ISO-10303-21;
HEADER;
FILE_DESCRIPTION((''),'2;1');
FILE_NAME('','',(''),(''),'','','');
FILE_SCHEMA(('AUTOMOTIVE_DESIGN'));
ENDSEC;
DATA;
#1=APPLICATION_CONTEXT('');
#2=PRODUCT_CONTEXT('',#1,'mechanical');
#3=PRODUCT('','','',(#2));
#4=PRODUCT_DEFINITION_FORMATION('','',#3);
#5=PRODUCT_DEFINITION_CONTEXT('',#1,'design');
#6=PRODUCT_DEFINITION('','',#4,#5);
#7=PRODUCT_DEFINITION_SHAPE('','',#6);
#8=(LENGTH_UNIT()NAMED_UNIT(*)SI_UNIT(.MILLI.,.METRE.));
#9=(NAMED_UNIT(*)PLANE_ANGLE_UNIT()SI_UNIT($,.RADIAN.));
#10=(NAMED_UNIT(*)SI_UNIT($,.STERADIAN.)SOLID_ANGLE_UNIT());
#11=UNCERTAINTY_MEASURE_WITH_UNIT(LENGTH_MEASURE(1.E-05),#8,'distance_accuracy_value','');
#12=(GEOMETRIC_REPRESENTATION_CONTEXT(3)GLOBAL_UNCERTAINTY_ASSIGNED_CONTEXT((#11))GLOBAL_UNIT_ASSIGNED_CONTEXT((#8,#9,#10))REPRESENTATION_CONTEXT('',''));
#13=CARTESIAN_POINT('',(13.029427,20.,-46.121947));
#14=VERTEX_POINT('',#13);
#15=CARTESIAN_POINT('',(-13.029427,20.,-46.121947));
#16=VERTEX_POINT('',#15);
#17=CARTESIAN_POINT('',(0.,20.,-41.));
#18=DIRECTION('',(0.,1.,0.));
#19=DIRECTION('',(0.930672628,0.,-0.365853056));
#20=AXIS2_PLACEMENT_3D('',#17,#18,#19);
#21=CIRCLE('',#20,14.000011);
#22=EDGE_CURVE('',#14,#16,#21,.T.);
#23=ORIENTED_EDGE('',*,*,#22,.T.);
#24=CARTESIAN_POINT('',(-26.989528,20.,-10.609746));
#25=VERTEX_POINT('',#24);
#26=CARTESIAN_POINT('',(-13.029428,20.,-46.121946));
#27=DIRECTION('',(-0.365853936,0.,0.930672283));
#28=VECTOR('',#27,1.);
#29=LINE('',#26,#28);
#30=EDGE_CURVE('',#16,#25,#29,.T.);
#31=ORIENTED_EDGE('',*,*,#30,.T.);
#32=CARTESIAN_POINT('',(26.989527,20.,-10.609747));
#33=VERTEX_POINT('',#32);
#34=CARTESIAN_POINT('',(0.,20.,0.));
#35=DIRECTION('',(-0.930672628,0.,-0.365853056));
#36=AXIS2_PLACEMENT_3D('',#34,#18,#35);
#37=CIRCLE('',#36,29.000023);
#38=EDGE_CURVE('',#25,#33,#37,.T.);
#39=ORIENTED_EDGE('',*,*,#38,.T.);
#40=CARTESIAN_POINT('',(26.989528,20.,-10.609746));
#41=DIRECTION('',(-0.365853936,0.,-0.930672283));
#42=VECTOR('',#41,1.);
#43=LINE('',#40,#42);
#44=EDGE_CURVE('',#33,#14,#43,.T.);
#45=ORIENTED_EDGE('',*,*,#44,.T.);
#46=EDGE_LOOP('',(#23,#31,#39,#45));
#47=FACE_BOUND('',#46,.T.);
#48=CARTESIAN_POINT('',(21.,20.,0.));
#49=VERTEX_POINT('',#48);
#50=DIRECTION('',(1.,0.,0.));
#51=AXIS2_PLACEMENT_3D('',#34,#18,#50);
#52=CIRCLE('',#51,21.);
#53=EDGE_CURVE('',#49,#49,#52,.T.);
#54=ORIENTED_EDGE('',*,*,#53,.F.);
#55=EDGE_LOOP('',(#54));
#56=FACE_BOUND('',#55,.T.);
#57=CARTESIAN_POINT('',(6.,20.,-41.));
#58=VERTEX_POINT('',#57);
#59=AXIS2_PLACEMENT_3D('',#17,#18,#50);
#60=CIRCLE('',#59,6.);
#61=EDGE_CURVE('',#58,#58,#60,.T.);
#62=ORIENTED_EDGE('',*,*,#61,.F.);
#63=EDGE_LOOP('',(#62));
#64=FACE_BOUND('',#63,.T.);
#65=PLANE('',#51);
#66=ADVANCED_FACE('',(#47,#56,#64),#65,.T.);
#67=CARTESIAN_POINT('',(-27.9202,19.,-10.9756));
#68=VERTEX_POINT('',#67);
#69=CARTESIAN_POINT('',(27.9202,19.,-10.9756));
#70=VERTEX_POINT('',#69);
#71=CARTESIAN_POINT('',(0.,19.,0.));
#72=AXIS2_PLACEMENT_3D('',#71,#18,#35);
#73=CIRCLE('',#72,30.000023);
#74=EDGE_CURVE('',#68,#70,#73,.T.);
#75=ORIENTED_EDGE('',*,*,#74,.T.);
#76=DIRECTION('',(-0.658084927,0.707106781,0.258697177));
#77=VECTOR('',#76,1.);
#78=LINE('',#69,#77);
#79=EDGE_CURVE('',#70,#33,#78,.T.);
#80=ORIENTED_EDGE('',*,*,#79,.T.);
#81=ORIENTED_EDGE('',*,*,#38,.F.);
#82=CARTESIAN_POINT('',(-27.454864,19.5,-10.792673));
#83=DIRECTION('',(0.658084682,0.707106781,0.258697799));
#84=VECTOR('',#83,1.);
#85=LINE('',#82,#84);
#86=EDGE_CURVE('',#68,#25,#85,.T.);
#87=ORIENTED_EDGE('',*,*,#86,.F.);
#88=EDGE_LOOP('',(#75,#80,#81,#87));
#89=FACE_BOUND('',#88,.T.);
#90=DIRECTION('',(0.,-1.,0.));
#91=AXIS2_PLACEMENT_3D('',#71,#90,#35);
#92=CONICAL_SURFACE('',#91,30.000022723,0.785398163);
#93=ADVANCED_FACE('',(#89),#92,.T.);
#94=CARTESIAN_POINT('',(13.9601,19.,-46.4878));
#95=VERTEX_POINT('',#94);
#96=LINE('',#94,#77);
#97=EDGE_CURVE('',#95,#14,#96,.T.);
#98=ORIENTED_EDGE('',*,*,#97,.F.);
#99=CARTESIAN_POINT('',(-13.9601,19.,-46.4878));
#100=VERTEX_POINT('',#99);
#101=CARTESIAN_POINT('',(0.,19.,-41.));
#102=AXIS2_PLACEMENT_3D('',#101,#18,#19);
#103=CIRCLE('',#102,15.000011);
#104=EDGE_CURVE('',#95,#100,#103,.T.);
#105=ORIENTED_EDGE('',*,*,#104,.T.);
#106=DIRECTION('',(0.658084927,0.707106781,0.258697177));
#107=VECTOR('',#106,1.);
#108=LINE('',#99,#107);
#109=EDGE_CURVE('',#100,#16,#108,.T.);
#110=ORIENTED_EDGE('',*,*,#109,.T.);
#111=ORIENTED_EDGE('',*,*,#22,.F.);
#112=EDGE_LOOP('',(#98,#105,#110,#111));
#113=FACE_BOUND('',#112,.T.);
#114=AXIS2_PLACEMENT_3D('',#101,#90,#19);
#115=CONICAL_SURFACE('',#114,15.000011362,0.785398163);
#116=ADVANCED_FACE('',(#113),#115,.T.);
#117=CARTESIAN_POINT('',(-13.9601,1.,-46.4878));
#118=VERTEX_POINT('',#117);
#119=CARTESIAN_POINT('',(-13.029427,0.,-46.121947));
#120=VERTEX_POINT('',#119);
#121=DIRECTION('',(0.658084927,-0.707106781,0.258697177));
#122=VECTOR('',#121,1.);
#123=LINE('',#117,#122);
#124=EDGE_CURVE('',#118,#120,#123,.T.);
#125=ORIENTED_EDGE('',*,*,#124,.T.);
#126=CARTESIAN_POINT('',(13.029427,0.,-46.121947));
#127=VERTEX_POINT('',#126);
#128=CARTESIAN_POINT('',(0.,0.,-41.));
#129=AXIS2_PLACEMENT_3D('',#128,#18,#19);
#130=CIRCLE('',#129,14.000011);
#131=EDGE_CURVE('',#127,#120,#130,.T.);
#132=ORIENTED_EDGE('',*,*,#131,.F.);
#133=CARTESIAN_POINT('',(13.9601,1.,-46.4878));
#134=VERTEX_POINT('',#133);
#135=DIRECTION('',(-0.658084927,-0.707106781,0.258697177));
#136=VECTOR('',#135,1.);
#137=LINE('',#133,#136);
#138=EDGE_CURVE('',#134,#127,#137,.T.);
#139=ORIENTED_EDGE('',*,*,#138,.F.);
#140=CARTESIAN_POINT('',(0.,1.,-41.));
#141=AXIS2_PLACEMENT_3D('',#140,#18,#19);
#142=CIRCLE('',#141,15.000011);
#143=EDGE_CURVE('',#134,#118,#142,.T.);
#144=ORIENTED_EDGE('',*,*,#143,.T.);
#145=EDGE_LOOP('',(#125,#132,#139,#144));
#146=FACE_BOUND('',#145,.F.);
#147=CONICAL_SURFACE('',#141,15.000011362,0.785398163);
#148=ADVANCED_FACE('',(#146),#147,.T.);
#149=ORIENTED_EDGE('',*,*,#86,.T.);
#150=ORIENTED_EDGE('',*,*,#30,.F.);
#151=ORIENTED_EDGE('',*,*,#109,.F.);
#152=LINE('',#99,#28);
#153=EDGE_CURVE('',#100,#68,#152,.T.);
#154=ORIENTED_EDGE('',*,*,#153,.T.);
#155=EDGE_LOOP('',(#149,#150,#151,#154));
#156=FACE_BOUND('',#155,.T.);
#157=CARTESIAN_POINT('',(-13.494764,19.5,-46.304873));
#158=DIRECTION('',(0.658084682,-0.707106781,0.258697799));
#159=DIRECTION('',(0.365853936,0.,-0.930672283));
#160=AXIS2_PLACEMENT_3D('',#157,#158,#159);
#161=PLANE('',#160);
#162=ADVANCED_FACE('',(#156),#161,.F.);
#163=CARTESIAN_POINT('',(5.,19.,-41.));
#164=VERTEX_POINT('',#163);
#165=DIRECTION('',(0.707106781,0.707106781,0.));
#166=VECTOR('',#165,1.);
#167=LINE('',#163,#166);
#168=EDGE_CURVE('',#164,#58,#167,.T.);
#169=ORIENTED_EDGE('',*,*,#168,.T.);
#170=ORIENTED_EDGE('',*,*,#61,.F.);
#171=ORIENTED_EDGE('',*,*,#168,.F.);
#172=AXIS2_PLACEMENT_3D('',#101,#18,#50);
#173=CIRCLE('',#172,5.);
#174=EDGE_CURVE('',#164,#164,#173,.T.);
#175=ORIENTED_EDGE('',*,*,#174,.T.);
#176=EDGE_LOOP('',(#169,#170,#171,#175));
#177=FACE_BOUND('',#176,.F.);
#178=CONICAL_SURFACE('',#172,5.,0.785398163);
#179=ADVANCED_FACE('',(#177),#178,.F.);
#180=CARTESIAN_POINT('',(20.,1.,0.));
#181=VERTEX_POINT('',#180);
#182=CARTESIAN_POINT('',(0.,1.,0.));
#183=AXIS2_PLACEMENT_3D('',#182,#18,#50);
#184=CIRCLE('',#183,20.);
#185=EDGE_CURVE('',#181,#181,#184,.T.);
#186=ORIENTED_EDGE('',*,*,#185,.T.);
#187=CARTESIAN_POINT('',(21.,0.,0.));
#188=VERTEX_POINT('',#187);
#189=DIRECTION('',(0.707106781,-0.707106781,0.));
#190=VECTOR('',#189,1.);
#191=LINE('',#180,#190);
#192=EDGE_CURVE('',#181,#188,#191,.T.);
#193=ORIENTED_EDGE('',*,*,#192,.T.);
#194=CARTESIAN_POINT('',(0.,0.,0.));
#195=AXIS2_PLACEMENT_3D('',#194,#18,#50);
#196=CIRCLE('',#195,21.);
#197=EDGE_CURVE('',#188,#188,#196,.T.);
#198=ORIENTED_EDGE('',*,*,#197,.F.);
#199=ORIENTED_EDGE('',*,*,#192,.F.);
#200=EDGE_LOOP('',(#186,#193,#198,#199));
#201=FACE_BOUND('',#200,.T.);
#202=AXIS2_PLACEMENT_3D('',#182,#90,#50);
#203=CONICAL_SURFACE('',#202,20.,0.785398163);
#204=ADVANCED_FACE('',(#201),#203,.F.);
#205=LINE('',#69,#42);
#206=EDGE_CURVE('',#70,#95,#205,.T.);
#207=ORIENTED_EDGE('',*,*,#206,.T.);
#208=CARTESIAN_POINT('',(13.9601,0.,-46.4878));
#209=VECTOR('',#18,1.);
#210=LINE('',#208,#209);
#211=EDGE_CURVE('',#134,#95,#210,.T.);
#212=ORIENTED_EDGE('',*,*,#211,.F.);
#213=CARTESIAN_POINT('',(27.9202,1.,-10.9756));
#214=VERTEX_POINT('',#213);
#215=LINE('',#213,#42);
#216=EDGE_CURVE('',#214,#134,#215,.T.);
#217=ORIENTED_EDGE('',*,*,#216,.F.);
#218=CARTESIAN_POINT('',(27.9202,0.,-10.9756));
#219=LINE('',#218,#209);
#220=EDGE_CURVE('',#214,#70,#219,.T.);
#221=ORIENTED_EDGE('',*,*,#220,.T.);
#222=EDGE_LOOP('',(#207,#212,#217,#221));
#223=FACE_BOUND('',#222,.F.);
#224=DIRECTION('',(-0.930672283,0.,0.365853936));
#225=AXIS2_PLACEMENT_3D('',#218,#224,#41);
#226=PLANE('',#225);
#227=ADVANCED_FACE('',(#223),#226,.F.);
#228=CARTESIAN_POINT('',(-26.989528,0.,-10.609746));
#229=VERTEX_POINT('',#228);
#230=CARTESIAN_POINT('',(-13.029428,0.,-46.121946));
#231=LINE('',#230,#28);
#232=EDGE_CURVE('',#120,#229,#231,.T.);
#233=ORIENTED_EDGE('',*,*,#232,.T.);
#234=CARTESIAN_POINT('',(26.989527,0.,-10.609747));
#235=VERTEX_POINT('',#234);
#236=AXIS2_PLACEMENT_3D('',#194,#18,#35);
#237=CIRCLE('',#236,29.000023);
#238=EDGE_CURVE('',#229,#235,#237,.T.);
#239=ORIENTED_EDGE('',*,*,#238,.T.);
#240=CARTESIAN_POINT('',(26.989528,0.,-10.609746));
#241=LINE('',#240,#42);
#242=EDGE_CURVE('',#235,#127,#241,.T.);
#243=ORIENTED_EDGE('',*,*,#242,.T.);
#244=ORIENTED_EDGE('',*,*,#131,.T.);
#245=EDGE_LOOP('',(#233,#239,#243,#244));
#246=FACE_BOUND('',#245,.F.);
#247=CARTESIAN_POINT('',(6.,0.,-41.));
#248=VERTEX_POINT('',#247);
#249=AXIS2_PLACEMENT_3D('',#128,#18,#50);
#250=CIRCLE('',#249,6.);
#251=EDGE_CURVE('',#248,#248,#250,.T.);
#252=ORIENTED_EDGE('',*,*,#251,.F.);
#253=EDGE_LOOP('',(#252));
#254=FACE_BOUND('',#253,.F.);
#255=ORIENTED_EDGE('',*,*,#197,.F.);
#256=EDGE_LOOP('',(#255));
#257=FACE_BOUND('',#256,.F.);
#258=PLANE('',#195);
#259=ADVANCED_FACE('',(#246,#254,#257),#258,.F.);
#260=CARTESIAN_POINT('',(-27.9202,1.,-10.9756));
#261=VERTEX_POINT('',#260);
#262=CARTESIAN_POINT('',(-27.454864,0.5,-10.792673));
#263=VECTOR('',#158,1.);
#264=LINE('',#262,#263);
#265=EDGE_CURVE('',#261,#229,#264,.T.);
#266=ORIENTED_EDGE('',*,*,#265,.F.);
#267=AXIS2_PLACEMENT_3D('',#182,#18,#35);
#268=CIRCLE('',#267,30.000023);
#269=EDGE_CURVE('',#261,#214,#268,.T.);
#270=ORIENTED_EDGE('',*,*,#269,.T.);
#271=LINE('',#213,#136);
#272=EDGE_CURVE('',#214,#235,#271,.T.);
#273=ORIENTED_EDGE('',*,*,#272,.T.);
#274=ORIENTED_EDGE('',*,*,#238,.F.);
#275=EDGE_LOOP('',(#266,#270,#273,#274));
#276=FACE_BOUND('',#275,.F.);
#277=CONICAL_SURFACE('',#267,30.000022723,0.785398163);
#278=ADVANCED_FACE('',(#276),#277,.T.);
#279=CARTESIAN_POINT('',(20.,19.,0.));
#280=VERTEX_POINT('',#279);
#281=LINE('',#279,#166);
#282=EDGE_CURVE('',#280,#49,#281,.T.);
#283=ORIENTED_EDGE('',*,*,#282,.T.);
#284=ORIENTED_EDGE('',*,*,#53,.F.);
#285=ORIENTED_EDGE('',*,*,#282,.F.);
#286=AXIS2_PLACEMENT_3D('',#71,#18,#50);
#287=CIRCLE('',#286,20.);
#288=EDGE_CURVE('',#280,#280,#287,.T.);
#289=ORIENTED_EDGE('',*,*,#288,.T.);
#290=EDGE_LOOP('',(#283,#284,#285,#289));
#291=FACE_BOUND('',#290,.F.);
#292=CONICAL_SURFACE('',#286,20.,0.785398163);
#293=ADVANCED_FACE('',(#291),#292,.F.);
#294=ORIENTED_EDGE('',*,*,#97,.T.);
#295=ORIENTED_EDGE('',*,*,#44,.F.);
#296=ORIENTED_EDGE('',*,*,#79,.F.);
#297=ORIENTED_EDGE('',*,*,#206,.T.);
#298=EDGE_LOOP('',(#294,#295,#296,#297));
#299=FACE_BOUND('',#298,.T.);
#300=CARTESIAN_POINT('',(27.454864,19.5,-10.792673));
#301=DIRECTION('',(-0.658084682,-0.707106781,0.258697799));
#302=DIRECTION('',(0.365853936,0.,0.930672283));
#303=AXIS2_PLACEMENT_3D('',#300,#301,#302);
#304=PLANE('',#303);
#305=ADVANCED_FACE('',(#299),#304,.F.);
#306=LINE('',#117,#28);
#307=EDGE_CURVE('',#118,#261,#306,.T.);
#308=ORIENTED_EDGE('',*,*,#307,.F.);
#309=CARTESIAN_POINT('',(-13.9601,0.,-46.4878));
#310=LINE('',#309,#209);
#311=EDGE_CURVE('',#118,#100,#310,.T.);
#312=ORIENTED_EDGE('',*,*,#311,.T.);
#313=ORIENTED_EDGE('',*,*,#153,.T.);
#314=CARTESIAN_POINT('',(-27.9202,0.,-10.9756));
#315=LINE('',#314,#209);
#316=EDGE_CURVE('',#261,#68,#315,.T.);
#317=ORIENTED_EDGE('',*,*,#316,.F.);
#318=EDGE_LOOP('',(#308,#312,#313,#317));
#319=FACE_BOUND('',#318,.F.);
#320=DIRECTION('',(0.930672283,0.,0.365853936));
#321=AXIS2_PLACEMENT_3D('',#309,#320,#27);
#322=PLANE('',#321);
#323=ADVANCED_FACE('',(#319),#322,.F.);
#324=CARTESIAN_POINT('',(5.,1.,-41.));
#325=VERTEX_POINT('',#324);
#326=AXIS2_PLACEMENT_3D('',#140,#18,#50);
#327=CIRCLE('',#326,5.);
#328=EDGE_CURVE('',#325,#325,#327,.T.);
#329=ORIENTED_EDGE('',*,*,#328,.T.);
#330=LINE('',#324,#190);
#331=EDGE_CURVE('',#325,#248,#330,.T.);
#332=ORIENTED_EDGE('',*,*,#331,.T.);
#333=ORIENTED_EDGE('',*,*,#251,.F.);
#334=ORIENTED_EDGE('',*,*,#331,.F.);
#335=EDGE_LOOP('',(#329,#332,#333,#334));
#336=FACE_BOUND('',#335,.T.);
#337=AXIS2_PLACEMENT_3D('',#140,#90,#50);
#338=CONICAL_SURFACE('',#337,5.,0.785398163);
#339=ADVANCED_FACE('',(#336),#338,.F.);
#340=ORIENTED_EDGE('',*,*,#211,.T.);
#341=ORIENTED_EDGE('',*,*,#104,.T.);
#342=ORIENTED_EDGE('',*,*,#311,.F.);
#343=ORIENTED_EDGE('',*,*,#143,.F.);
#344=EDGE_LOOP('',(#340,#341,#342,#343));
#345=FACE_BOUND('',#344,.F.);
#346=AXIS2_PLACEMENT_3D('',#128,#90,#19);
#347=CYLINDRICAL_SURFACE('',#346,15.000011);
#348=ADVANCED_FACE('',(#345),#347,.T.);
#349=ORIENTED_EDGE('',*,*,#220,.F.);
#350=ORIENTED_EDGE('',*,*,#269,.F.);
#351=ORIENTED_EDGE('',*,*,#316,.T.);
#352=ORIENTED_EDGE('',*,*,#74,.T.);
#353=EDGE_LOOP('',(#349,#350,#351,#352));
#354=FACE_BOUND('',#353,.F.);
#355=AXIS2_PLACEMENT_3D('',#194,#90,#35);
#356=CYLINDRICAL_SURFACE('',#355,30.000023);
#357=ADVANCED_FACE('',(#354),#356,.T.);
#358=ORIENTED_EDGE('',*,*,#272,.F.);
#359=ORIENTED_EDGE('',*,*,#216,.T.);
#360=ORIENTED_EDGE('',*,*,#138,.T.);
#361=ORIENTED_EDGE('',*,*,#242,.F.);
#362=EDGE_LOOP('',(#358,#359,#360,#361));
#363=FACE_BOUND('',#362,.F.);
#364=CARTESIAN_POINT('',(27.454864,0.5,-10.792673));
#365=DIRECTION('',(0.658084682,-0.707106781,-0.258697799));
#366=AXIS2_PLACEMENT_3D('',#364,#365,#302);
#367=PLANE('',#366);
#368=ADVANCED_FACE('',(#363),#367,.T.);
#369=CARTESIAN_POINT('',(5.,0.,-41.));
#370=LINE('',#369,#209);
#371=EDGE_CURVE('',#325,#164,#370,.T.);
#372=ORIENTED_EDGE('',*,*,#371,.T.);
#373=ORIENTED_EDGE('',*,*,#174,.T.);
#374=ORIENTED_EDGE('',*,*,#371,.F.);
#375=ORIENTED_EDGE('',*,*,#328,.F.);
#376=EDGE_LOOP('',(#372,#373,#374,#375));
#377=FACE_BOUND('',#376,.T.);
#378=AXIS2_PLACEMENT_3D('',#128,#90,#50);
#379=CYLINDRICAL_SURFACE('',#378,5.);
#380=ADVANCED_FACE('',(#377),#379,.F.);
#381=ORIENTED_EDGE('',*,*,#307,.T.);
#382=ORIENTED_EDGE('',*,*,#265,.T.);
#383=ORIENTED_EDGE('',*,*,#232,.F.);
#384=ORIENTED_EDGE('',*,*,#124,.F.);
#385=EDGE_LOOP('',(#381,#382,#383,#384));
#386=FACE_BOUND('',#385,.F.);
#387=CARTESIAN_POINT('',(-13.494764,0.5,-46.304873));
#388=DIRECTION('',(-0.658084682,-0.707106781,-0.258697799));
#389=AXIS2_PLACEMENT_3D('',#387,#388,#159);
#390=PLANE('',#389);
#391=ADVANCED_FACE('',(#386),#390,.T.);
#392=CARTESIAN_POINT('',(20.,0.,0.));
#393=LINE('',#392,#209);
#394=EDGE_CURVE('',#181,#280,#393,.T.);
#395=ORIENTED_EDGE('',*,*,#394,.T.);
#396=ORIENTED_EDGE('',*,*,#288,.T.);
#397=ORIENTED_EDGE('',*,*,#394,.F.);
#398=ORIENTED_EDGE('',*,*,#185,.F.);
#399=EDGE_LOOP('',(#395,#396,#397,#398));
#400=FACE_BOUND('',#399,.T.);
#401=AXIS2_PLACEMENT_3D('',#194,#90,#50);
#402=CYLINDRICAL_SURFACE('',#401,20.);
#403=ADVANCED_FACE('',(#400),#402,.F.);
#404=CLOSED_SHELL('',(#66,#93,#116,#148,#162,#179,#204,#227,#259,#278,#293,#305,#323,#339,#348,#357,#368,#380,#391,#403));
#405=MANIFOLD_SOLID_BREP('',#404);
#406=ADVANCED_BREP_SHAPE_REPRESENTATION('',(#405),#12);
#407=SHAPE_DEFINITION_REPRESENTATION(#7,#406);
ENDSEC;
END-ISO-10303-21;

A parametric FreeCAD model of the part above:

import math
import FreeCAD as App
import Part
import Sketcher


def edges_at(feature, points):
    """Names of the edges that pass closest to the given points."""
    edges = feature.Shape.Edges
    near = lambda p: min(range(len(edges)), key=lambda i: edges[i].distToShape(Part.Vertex(*p))[0])
    return sorted({f"Edge{near(p) + 1}" for p in points})

doc = App.newDocument("Part")
body = doc.addObject("PartDesign::Body", "Body")

# Sketch on XZ plane
sketch1 = body.newObject("Sketcher::SketchObject", "Sketch")
sketch1.AttachmentSupport = (doc.getObject("XZ_Plane"), [""])
sketch1.MapMode = "FlatFace"
sketch1.addGeometry(Part.ArcOfCircle(Part.Circle(App.Vector(0, -41, 0), App.Vector(0, 0, 1), 15), math.radians(-159), math.radians(-21)), False)
sketch1.addGeometry(Part.LineSegment(App.Vector(-14, -46, 0), App.Vector(-28, -11, 0)), False)
sketch1.addGeometry(Part.ArcOfCircle(Part.Circle(App.Vector(0, 0, 0), App.Vector(0, 0, 1), 30), math.radians(-21), math.radians(201)), False)
sketch1.addGeometry(Part.LineSegment(App.Vector(28, -11, 0), App.Vector(14, -46, 0)), False)
sketch1.addGeometry(Part.Circle(App.Vector(0, 0, 0), App.Vector(0, 0, 1), 20), False)
sketch1.addGeometry(Part.Circle(App.Vector(0, -41, 0), App.Vector(0, 0, 1), 5), False)
sketch1.addConstraint(Sketcher.Constraint("Tangent", 0, 1, 1, 1))
sketch1.addConstraint(Sketcher.Constraint("Tangent", 1, 2, 2, 2))
sketch1.addConstraint(Sketcher.Constraint("Tangent", 2, 1, 3, 1))
sketch1.addConstraint(Sketcher.Constraint("Tangent", 3, 2, 0, 2))
sketch1.addConstraint(Sketcher.Constraint("Coincident", 2, 3, -1, 1))
sketch1.addConstraint(Sketcher.Constraint("Coincident", 4, 3, -1, 1))
sketch1.addConstraint(Sketcher.Constraint("Coincident", 5, 3, 0, 3))
sketch1.addConstraint(Sketcher.Constraint("PointOnObject", 0, 3, -2))
sketch1.addConstraint(Sketcher.Constraint("Diameter", 4, 40.0))
sketch1.addConstraint(Sketcher.Constraint("Diameter", 5, 10.0))
sketch1.addConstraint(Sketcher.Constraint("Radius", 0, 15.0))
sketch1.addConstraint(Sketcher.Constraint("Radius", 2, 30.0))
sketch1.addConstraint(Sketcher.Constraint("DistanceY", 0, 3, -1, 1, 41.0))
pad1 = body.newObject("PartDesign::Pad", "Pad")
pad1.Profile = sketch1
pad1.Length = 20
pad1.Reversed = True
doc.recompute()

chamfer = body.newObject("PartDesign::Chamfer", "Chamfer")
chamfer.Base = (pad1, edges_at(pad1, [
    (0, 20, -56),
    (-20.94, 20, -28.732),
    (0, 20, 30),
    (20.94, 20, -28.732),
    (0, 0, -56),
    (-20.94, 0, -28.732),
    (0, 0, 30),
    (20.94, 0, -28.732),
    (-18.646, 20, -7.232),
    (-18.646, 0, -7.232),
    (-4.662, 20, -42.808),
    (-4.662, 0, -42.808),
]))
chamfer.Size = 1

doc.recompute()
